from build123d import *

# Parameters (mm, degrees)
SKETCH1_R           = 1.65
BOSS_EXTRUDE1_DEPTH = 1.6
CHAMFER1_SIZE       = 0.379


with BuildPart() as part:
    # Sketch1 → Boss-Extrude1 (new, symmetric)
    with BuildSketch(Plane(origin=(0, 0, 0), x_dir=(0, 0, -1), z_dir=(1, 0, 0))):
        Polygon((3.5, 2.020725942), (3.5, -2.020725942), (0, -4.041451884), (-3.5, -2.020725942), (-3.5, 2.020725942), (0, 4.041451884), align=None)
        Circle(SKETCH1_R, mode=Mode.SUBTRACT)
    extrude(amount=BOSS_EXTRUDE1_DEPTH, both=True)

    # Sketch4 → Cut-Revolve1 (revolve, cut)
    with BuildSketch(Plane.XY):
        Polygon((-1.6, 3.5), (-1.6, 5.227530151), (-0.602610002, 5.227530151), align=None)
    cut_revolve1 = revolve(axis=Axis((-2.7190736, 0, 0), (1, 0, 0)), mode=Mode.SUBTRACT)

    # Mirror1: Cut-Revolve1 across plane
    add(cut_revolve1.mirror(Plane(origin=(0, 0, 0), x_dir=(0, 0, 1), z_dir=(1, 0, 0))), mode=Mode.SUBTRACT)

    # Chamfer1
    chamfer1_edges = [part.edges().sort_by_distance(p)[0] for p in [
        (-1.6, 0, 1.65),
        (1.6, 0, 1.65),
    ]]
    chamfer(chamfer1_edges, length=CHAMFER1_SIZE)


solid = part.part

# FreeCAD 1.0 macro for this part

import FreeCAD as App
import Part
import Sketcher

V = App.Vector
Q = App.Units.Quantity


def edges_at(feature, points):
    """Names of the edges that pass closest to the given points."""
    edges = feature.Shape.Edges
    near = lambda p: min(range(len(edges)), key=lambda i: edges[i].distToShape(Part.Vertex(*p))[0])
    return sorted({f"Edge{near(p) + 1}" for p in points})


def add_polygon(sketch, points):
    """Adds a closed chain of lines whose ends are joined by coincident constraints."""
    first, n = sketch.GeometryCount, len(points)
    for a, b in zip(points, points[1:] + points[:1]):
        sketch.addGeometry(Part.LineSegment(App.Vector(*a, 0), App.Vector(*b, 0)), False)
    for i in range(n):
        sketch.addConstraint(Sketcher.Constraint("Coincident", first + i, 2, first + (i + 1) % n, 1))

doc = App.newDocument("Part")
body = doc.addObject("PartDesign::Body", "Body")

sketch1 = doc.addObject("Sketcher::SketchObject", "Sketch")
body.addObject(sketch1)
sketch1.AttachmentSupport = (doc.YZ_Plane, [""])
sketch1.MapMode = "FlatFace"
add_polygon(sketch1, [(-2.020726, -3.5), (2.020726, -3.5), (4.041452, 0), (2.020726, 3.5), (-2.020726, 3.5), (-4.041452, 0)])
sketch1.addGeometry(Part.Circle(V(0, 0, 0), V(0, 0, 1), 1.65), False)
sketch1.addConstraint([
    Sketcher.Constraint("Horizontal", 0),
    Sketcher.Constraint("Horizontal", 3),
    Sketcher.Constraint("Coincident", 6, 3, -1, 1),
    Sketcher.Constraint("Symmetric", 0, 2, 3, 2, -1, 1),
    Sketcher.Constraint("Symmetric", 1, 2, 4, 2, -1, 1),
    Sketcher.Constraint("PointOnObject", 1, 2, -1),
    Sketcher.Constraint("Parallel", 2, 5),
    Sketcher.Constraint("Vertical", 0, 2, 2, 2),
    Sketcher.Constraint("Diameter", 6, Q("3.3 mm")),
    Sketcher.Constraint("Angle", 1, Q("60 deg")),
    Sketcher.Constraint("DistanceY", 0, 2, 2, 2, Q("7 mm")),
    Sketcher.Constraint("DistanceX", 0, 1, 0, 2, Q("4.041452 mm")),
])
pad1 = doc.addObject("PartDesign::Pad", "Pad")
body.addObject(pad1)
pad1.Profile = sketch1
pad1.Length = 3.2
pad1.Midplane = True

sketch2 = doc.addObject("Sketcher::SketchObject", "Sketch001")
body.addObject(sketch2)
sketch2.AttachmentSupport = (doc.XY_Plane, [""])
sketch2.MapMode = "FlatFace"
add_polygon(sketch2, [(-1.6, 5.22753), (-1.6, 3.5), (-0.60261, 5.22753)])
sketch2.addConstraint([
    Sketcher.Constraint("Vertical", 0),
    Sketcher.Constraint("Horizontal", 2),
    Sketcher.Constraint("Angle", 1, Q("60 deg")),
    Sketcher.Constraint("DistanceX", 0, 2, -1, 1, Q("1.6 mm")),
    Sketcher.Constraint("DistanceY", -1, 1, 0, 2, Q("3.5 mm")),
    Sketcher.Constraint("DistanceX", 2, 2, 2, 1, Q("0.99739 mm")),
])
groove = doc.addObject("PartDesign::Groove", "Groove")
body.addObject(groove)
groove.Profile = sketch2
groove.ReferenceAxis = (sketch2, ["H_Axis"])
groove.Angle = 360
doc.recompute()

mirrored = doc.addObject("PartDesign::Mirrored", "Mirrored")
body.addObject(mirrored)
mirrored.Originals = [groove]
mirrored.MirrorPlane = (doc.YZ_Plane, [""])
body.Tip = mirrored
doc.recompute()

chamfer = doc.addObject("PartDesign::Chamfer", "Chamfer")
body.addObject(chamfer)
chamfer.Base = (mirrored, edges_at(mirrored, [(-1.6, 0, 1.65), (1.6, 0, 1.65)]))
chamfer.Size = 0.379

doc.recompute()
